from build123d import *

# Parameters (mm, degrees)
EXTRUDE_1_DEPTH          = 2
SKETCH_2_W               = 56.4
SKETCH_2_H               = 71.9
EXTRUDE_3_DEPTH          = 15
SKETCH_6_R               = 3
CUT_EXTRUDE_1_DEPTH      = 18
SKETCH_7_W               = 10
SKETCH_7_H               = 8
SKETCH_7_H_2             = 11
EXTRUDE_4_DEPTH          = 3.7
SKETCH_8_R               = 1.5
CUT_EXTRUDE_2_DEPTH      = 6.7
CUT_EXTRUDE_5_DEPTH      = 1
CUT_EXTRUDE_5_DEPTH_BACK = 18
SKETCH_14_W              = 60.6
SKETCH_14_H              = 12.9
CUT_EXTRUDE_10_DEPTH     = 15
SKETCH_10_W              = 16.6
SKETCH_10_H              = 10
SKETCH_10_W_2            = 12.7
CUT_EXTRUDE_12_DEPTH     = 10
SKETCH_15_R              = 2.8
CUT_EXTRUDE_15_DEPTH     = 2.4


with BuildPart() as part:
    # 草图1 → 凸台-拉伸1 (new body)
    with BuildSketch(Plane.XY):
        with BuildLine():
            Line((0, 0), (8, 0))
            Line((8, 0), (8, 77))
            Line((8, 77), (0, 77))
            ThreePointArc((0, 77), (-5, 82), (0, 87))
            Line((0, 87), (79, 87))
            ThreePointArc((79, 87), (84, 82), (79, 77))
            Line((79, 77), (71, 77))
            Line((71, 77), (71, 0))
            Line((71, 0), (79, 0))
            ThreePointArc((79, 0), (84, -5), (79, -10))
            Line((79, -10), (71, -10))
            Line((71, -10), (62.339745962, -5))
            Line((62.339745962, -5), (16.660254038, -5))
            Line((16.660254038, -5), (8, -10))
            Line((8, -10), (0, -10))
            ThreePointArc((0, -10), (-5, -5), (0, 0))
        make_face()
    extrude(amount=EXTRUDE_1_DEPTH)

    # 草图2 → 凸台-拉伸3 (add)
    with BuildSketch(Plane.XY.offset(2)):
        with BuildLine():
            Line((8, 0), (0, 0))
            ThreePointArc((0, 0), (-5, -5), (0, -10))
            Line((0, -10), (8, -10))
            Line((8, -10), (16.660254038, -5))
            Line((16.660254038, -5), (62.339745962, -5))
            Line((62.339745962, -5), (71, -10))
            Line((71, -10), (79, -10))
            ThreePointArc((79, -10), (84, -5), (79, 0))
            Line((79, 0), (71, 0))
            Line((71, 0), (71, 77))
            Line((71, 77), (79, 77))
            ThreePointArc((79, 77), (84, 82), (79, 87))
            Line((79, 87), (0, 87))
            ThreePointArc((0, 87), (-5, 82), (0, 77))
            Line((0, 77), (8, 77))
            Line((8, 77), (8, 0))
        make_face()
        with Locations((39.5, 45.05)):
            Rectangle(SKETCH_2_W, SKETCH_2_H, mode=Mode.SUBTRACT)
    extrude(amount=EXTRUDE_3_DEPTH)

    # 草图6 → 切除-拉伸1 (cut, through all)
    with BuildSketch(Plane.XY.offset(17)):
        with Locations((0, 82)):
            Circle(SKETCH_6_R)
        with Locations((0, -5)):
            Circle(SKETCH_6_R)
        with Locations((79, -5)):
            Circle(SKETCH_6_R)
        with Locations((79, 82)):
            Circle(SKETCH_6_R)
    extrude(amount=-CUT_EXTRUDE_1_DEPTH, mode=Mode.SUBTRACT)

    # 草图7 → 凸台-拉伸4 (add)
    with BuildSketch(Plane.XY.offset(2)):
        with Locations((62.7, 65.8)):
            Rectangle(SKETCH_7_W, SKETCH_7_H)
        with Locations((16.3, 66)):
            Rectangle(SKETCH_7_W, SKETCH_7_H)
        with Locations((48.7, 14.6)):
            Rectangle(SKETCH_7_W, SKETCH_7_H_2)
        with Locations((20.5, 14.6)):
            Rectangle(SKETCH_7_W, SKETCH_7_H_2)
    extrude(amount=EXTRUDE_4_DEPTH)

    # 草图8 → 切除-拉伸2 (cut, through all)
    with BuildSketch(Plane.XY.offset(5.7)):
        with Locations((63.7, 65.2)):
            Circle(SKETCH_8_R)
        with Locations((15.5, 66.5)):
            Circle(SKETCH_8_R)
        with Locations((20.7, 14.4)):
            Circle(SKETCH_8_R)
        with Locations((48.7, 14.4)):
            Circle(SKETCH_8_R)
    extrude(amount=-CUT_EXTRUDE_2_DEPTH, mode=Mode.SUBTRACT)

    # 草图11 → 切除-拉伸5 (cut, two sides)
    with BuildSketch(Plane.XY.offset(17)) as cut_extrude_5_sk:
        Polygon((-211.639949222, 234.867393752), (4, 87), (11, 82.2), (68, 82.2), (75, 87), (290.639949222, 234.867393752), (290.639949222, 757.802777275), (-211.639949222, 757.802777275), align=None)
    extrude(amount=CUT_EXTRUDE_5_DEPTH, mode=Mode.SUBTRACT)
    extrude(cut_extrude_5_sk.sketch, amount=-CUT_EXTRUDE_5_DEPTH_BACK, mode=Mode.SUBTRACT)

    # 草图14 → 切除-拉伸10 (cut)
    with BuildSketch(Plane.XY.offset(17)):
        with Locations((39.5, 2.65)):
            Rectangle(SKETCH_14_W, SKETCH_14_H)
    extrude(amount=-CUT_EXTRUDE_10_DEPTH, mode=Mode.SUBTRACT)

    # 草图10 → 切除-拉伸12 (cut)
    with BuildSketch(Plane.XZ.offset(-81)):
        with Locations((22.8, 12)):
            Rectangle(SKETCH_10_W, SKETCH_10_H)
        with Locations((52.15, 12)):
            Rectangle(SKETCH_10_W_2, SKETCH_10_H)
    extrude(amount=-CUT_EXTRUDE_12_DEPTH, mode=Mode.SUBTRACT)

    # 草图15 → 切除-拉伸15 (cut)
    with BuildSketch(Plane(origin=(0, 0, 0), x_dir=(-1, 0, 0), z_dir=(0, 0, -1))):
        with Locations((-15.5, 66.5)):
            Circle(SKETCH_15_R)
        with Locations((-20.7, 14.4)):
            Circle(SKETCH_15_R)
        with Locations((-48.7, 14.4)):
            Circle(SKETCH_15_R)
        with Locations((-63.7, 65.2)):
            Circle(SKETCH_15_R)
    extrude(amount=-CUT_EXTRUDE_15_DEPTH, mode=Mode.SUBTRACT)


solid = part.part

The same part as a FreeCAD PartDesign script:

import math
import FreeCAD as App
import Part
import Sketcher
Q = App.Units.Quantity


def add_polygon(sketch, points):
    """Adds a closed chain of lines whose ends are joined by coincident constraints."""
    first, n = sketch.GeometryCount, len(points)
    for a, b in zip(points, points[1:] + points[:1]):
        sketch.addGeometry(Part.LineSegment(App.Vector(*a, 0), App.Vector(*b, 0)), False)
    for i in range(n):
        sketch.addConstraint(Sketcher.Constraint("Coincident", first + i, 2, first + (i + 1) % n, 1))

doc = App.newDocument("Part")
body = doc.addObject("PartDesign::Body", "Body")

sketch1 = body.newObject("Sketcher::SketchObject", "Sketch")
sketch1.AttachmentSupport = (doc.getObject("XY_Plane"), [""])
sketch1.MapMode = "FlatFace"
sketch1.addGeometry(Part.LineSegment(App.Vector(8, 0, 0), App.Vector(0, 0, 0)), False)
sketch1.addGeometry(Part.ArcOfCircle(Part.Circle(App.Vector(0, -5, 0), App.Vector(0, 0, 1), 5), math.radians(90), math.radians(270)), False)
sketch1.addGeometry(Part.LineSegment(App.Vector(0, -10, 0), App.Vector(8, -10, 0)), False)
sketch1.addGeometry(Part.LineSegment(App.Vector(8, -10, 0), App.Vector(16.660254, -5, 0)), False)
sketch1.addGeometry(Part.LineSegment(App.Vector(16.660254, -5, 0), App.Vector(62.339746, -5, 0)), False)
sketch1.addGeometry(Part.LineSegment(App.Vector(62.339746, -5, 0), App.Vector(71, -10, 0)), False)
sketch1.addGeometry(Part.LineSegment(App.Vector(71, -10, 0), App.Vector(79, -10, 0)), False)
sketch1.addGeometry(Part.ArcOfCircle(Part.Circle(App.Vector(79, -5, 0), App.Vector(0, 0, 1), 5), math.radians(-90), math.radians(90)), False)
sketch1.addGeometry(Part.LineSegment(App.Vector(79, 0, 0), App.Vector(71, 0, 0)), False)
sketch1.addGeometry(Part.LineSegment(App.Vector(71, 0, 0), App.Vector(71, 77, 0)), False)
sketch1.addGeometry(Part.LineSegment(App.Vector(71, 77, 0), App.Vector(79, 77, 0)), False)
sketch1.addGeometry(Part.ArcOfCircle(Part.Circle(App.Vector(79, 82, 0), App.Vector(0, 0, 1), 5), math.radians(-90), math.radians(90)), False)
sketch1.addGeometry(Part.LineSegment(App.Vector(79, 87, 0), App.Vector(0, 87, 0)), False)
sketch1.addGeometry(Part.ArcOfCircle(Part.Circle(App.Vector(0, 82, 0), App.Vector(0, 0, 1), 5), math.radians(90), math.radians(270)), False)
sketch1.addGeometry(Part.LineSegment(App.Vector(0, 77, 0), App.Vector(8, 77, 0)), False)
sketch1.addGeometry(Part.LineSegment(App.Vector(8, 77, 0), App.Vector(8, 0, 0)), False)
sketch1.addConstraint(Sketcher.Constraint("Tangent", 0, 2, 1, 1))
sketch1.addConstraint(Sketcher.Constraint("Tangent", 1, 2, 2, 1))
sketch1.addConstraint(Sketcher.Constraint("Coincident", 2, 2, 3, 1))
sketch1.addConstraint(Sketcher.Constraint("Coincident", 3, 2, 4, 1))
sketch1.addConstraint(Sketcher.Constraint("Coincident", 4, 2, 5, 1))
sketch1.addConstraint(Sketcher.Constraint("Coincident", 5, 2, 6, 1))
sketch1.addConstraint(Sketcher.Constraint("Tangent", 6, 2, 7, 1))
sketch1.addConstraint(Sketcher.Constraint("Tangent", 7, 2, 8, 1))
sketch1.addConstraint(Sketcher.Constraint("Coincident", 8, 2, 9, 1))
sketch1.addConstraint(Sketcher.Constraint("Coincident", 9, 2, 10, 1))
sketch1.addConstraint(Sketcher.Constraint("Tangent", 10, 2, 11, 1))
sketch1.addConstraint(Sketcher.Constraint("Tangent", 11, 2, 12, 1))
sketch1.addConstraint(Sketcher.Constraint("Tangent", 12, 2, 13, 1))
sketch1.addConstraint(Sketcher.Constraint("Tangent", 13, 2, 14, 1))
sketch1.addConstraint(Sketcher.Constraint("Coincident", 14, 2, 15, 1))
sketch1.addConstraint(Sketcher.Constraint("Coincident", 15, 2, 0, 1))
sketch1.addConstraint(Sketcher.Constraint("Horizontal", 0))
sketch1.addConstraint(Sketcher.Constraint("Horizontal", 2))
sketch1.addConstraint(Sketcher.Constraint("Horizontal", 4))
sketch1.addConstraint(Sketcher.Constraint("Horizontal", 6))
sketch1.addConstraint(Sketcher.Constraint("Horizontal", 8))
sketch1.addConstraint(Sketcher.Constraint("Vertical", 9))
sketch1.addConstraint(Sketcher.Constraint("Horizontal", 10))
sketch1.addConstraint(Sketcher.Constraint("Horizontal", 12))
sketch1.addConstraint(Sketcher.Constraint("Horizontal", 14))
sketch1.addConstraint(Sketcher.Constraint("Vertical", 15))
sketch1.addConstraint(Sketcher.Constraint("Coincident", 0, 2, -1, 1))
sketch1.addConstraint(Sketcher.Constraint("Equal", 1, 7))
sketch1.addConstraint(Sketcher.Constraint("Equal", 7, 11))
sketch1.addConstraint(Sketcher.Constraint("Equal", 11, 13))
sketch1.addConstraint(Sketcher.Constraint("PointOnObject", 13, 3, -2))
sketch1.addConstraint(Sketcher.Constraint("PointOnObject", 7, 2, -1))
sketch1.addConstraint(Sketcher.Constraint("Horizontal", 7, 3, 3, 2))
sketch1.addConstraint(Sketcher.Constraint("Vertical", 7, 3, 11, 3))
sketch1.addConstraint(Sketcher.Constraint("Vertical", 5, 2, 8, 2))
sketch1.addConstraint(Sketcher.Constraint("Vertical", 2, 2, 14, 2))
sketch1.addConstraint(Sketcher.Constraint("Equal", 2, 6))
sketch1.addConstraint(Sketcher.Constraint("Equal", 3, 5))
sketch1.addConstraint(Sketcher.Constraint("Radius", 1, Q("5 mm")))
sketch1.addConstraint(Sketcher.Constraint("DistanceX", 0, 2, 0, 1, Q("8 mm")))
sketch1.addConstraint(Sketcher.Constraint("DistanceX", 12, 2, 12, 1, Q("79 mm")))
sketch1.addConstraint(Sketcher.Constraint("DistanceY", 9, 1, 9, 2, Q("77 mm")))
sketch1.addConstraint(Sketcher.Constraint("Angle", 3, Q("30 deg")))
pad1 = body.newObject("PartDesign::Pad", "Pad")
pad1.Profile = sketch1
pad1.Length = 2

sketch2 = body.newObject("Sketcher::SketchObject", "Sketch001")
sketch2.AttachmentSupport = (doc.getObject("XY_Plane"), [""])
sketch2.MapMode = "FlatFace"
sketch2.AttachmentOffset = App.Placement(App.Vector(0, 0, 2), App.Rotation())
sketch2.addGeometry(Part.LineSegment(App.Vector(8, 0, 0), App.Vector(0, 0, 0)), False)
sketch2.addGeometry(Part.ArcOfCircle(Part.Circle(App.Vector(0, -5, 0), App.Vector(0, 0, 1), 5), math.radians(90), math.radians(270)), False)
sketch2.addGeometry(Part.LineSegment(App.Vector(0, -10, 0), App.Vector(8, -10, 0)), False)
sketch2.addGeometry(Part.LineSegment(App.Vector(8, -10, 0), App.Vector(16.660254, -5, 0)), False)
sketch2.addGeometry(Part.LineSegment(App.Vector(16.660254, -5, 0), App.Vector(62.339746, -5, 0)), False)
sketch2.addGeometry(Part.LineSegment(App.Vector(62.339746, -5, 0), App.Vector(71, -10, 0)), False)
sketch2.addGeometry(Part.LineSegment(App.Vector(71, -10, 0), App.Vector(79, -10, 0)), False)
sketch2.addGeometry(Part.ArcOfCircle(Part.Circle(App.Vector(79, -5, 0), App.Vector(0, 0, 1), 5), math.radians(-90), math.radians(90)), False)
sketch2.addGeometry(Part.LineSegment(App.Vector(79, 0, 0), App.Vector(71, 0, 0)), False)
sketch2.addGeometry(Part.LineSegment(App.Vector(71, 0, 0), App.Vector(71, 77, 0)), False)
sketch2.addGeometry(Part.LineSegment(App.Vector(71, 77, 0), App.Vector(79, 77, 0)), False)
sketch2.addGeometry(Part.ArcOfCircle(Part.Circle(App.Vector(79, 82, 0), App.Vector(0, 0, 1), 5), math.radians(-90), math.radians(90)), False)
sketch2.addGeometry(Part.LineSegment(App.Vector(79, 87, 0), App.Vector(0, 87, 0)), False)
sketch2.addGeometry(Part.ArcOfCircle(Part.Circle(App.Vector(0, 82, 0), App.Vector(0, 0, 1), 5), math.radians(90), math.radians(270)), False)
sketch2.addGeometry(Part.LineSegment(App.Vector(0, 77, 0), App.Vector(8, 77, 0)), False)
sketch2.addGeometry(Part.LineSegment(App.Vector(8, 77, 0), App.Vector(8, 0, 0)), False)
add_polygon(sketch2, [(67.7, 9.1), (11.3, 9.1), (11.3, 81), (67.7, 81)])
sketch2.addConstraint(Sketcher.Constraint("Tangent", 0, 2, 1, 1))
sketch2.addConstraint(Sketcher.Constraint("Tangent", 1, 2, 2, 1))
sketch2.addConstraint(Sketcher.Constraint("Coincident", 2, 2, 3, 1))
sketch2.addConstraint(Sketcher.Constraint("Coincident", 3, 2, 4, 1))
sketch2.addConstraint(Sketcher.Constraint("Coincident", 4, 2, 5, 1))
sketch2.addConstraint(Sketcher.Constraint("Coincident", 5, 2, 6, 1))
sketch2.addConstraint(Sketcher.Constraint("Tangent", 6, 2, 7, 1))
sketch2.addConstraint(Sketcher.Constraint("Tangent", 7, 2, 8, 1))
sketch2.addConstraint(Sketcher.Constraint("Coincident", 8, 2, 9, 1))
sketch2.addConstraint(Sketcher.Constraint("Coincident", 9, 2, 10, 1))
sketch2.addConstraint(Sketcher.Constraint("Tangent", 10, 2, 11, 1))
sketch2.addConstraint(Sketcher.Constraint("Tangent", 11, 2, 12, 1))
sketch2.addConstraint(Sketcher.Constraint("Tangent", 12, 2, 13, 1))
sketch2.addConstraint(Sketcher.Constraint("Tangent", 13, 2, 14, 1))
sketch2.addConstraint(Sketcher.Constraint("Coincident", 14, 2, 15, 1))
sketch2.addConstraint(Sketcher.Constraint("Coincident", 15, 2, 0, 1))
sketch2.addConstraint(Sketcher.Constraint("Horizontal", 0))
sketch2.addConstraint(Sketcher.Constraint("Horizontal", 2))
sketch2.addConstraint(Sketcher.Constraint("Horizontal", 4))
sketch2.addConstraint(Sketcher.Constraint("Horizontal", 6))
sketch2.addConstraint(Sketcher.Constraint("Horizontal", 8))
sketch2.addConstraint(Sketcher.Constraint("Vertical", 9))
sketch2.addConstraint(Sketcher.Constraint("Horizontal", 10))
sketch2.addConstraint(Sketcher.Constraint("Horizontal", 12))
sketch2.addConstraint(Sketcher.Constraint("Horizontal", 14))
sketch2.addConstraint(Sketcher.Constraint("Vertical", 15))
sketch2.addConstraint(Sketcher.Constraint("Horizontal", 16))
sketch2.addConstraint(Sketcher.Constraint("Vertical", 17))
sketch2.addConstraint(Sketcher.Constraint("Horizontal", 18))
sketch2.addConstraint(Sketcher.Constraint("Vertical", 19))
sketch2.addConstraint(Sketcher.Constraint("Coincident", 0, 2, -1, 1))
sketch2.addConstraint(Sketcher.Constraint("Equal", 1, 7))
sketch2.addConstraint(Sketcher.Constraint("Equal", 7, 11))
sketch2.addConstraint(Sketcher.Constraint("Equal", 11, 13))
sketch2.addConstraint(Sketcher.Constraint("PointOnObject", 13, 3, -2))
sketch2.addConstraint(Sketcher.Constraint("PointOnObject", 7, 2, -1))
sketch2.addConstraint(Sketcher.Constraint("Horizontal", 7, 3, 3, 2))
sketch2.addConstraint(Sketcher.Constraint("Vertical", 7, 3, 11, 3))
sketch2.addConstraint(Sketcher.Constraint("Vertical", 5, 2, 8, 2))
sketch2.addConstraint(Sketcher.Constraint("Vertical", 2, 2, 14, 2))
sketch2.addConstraint(Sketcher.Constraint("Equal", 2, 6))
sketch2.addConstraint(Sketcher.Constraint("Equal", 3, 5))
sketch2.addConstraint(Sketcher.Constraint("Radius", 1, Q("5 mm")))
sketch2.addConstraint(Sketcher.Constraint("DistanceX", 0, 2, 0, 1, Q("8 mm")))
sketch2.addConstraint(Sketcher.Constraint("DistanceX", 12, 2, 12, 1, Q("79 mm")))
sketch2.addConstraint(Sketcher.Constraint("DistanceY", 9, 1, 9, 2, Q("77 mm")))
sketch2.addConstraint(Sketcher.Constraint("Angle", 3, Q("30 deg")))
sketch2.addConstraint(Sketcher.Constraint("DistanceX", 16, 2, 16, 1, Q("56.4 mm")))
sketch2.addConstraint(Sketcher.Constraint("DistanceY", 17, 1, 17, 2, Q("71.9 mm")))
sketch2.addConstraint(Sketcher.Constraint("DistanceY", -1, 1, 17, 2, Q("81 mm")))
sketch2.addConstraint(Sketcher.Constraint("DistanceX", -1, 1, 16, 2, Q("11.3 mm")))
pad2 = body.newObject("PartDesign::Pad", "Pad001")
pad2.Profile = sketch2
pad2.Length = 15

sketch3 = body.newObject("Sketcher::SketchObject", "Sketch002")
sketch3.AttachmentSupport = (doc.getObject("XY_Plane"), [""])
sketch3.MapMode = "FlatFace"
sketch3.AttachmentOffset = App.Placement(App.Vector(0, 0, 17), App.Rotation())
sketch3.addGeometry(Part.Circle(App.Vector(0, 82, 0), App.Vector(0, 0, 1), 3), False)
sketch3.addGeometry(Part.Circle(App.Vector(0, -5, 0), App.Vector(0, 0, 1), 3), False)
sketch3.addGeometry(Part.Circle(App.Vector(79, -5, 0), App.Vector(0, 0, 1), 3), False)
sketch3.addGeometry(Part.Circle(App.Vector(79, 82, 0), App.Vector(0, 0, 1), 3), False)
sketch3.addConstraint(Sketcher.Constraint("Equal", 0, 1))
sketch3.addConstraint(Sketcher.Constraint("Equal", 1, 2))
sketch3.addConstraint(Sketcher.Constraint("Equal", 2, 3))
sketch3.addConstraint(Sketcher.Constraint("PointOnObject", 0, 3, -2))
sketch3.addConstraint(Sketcher.Constraint("PointOnObject", 1, 3, -2))
sketch3.addConstraint(Sketcher.Constraint("Horizontal", 1, 3, 2, 3))
sketch3.addConstraint(Sketcher.Constraint("Horizontal", 0, 3, 3, 3))
sketch3.addConstraint(Sketcher.Constraint("Vertical", 2, 3, 3, 3))
sketch3.addConstraint(Sketcher.Constraint("Diameter", 0, Q("6 mm")))
sketch3.addConstraint(Sketcher.Constraint("DistanceY", -1, 1, 0, 3, Q("82 mm")))
sketch3.addConstraint(Sketcher.Constraint("DistanceY", 1, 3, -1, 1, Q("5 mm")))
sketch3.addConstraint(Sketcher.Constraint("DistanceX", -1, 1, 2, 3, Q("79 mm")))
pocket1 = body.newObject("PartDesign::Pocket", "Pocket")
pocket1.Profile = sketch3
pocket1.Type = "ThroughAll"

sketch4 = body.newObject("Sketcher::SketchObject", "Sketch003")
sketch4.AttachmentSupport = (doc.getObject("XY_Plane"), [""])
sketch4.MapMode = "FlatFace"
sketch4.AttachmentOffset = App.Placement(App.Vector(0, 0, 2), App.Rotation())
add_polygon(sketch4, [(57.7, 69.8), (57.7, 61.8), (67.7, 61.8), (67.7, 69.8)])
add_polygon(sketch4, [(11.3, 70), (11.3, 62), (21.3, 62), (21.3, 70)])
add_polygon(sketch4, [(43.7, 20.1), (43.7, 9.1), (53.7, 9.1), (53.7, 20.1)])
add_polygon(sketch4, [(15.5, 20.1), (15.5, 9.1), (25.5, 9.1), (25.5, 20.1)])
sketch4.addConstraint(Sketcher.Constraint("Vertical", 0))
sketch4.addConstraint(Sketcher.Constraint("Horizontal", 1))
sketch4.addConstraint(Sketcher.Constraint("Vertical", 2))
sketch4.addConstraint(Sketcher.Constraint("Horizontal", 3))
sketch4.addConstraint(Sketcher.Constraint("Vertical", 4))
sketch4.addConstraint(Sketcher.Constraint("Horizontal", 5))
sketch4.addConstraint(Sketcher.Constraint("Vertical", 6))
sketch4.addConstraint(Sketcher.Constraint("Horizontal", 7))
sketch4.addConstraint(Sketcher.Constraint("Vertical", 8))
sketch4.addConstraint(Sketcher.Constraint("Horizontal", 9))
sketch4.addConstraint(Sketcher.Constraint("Vertical", 10))
sketch4.addConstraint(Sketcher.Constraint("Horizontal", 11))
sketch4.addConstraint(Sketcher.Constraint("Vertical", 12))
sketch4.addConstraint(Sketcher.Constraint("Horizontal", 13))
sketch4.addConstraint(Sketcher.Constraint("Vertical", 14))
sketch4.addConstraint(Sketcher.Constraint("Horizontal", 15))
sketch4.addConstraint(Sketcher.Constraint("Horizontal", 9, 2, 12, 2))
sketch4.addConstraint(Sketcher.Constraint("Horizontal", 11, 2, 14, 2))
sketch4.addConstraint(Sketcher.Constraint("Equal", 3, 5))
sketch4.addConstraint(Sketcher.Constraint("Equal", 7, 9))
sketch4.addConstraint(Sketcher.Constraint("Equal", 11, 13))
sketch4.addConstraint(Sketcher.Constraint("Equal", 2, 4))
sketch4.addConstraint(Sketcher.Constraint("DistanceX", 1, 1, 1, 2, Q("10 mm")))
sketch4.addConstraint(Sketcher.Constraint("DistanceY", 0, 2, 0, 1, Q("8 mm")))
sketch4.addConstraint(Sketcher.Constraint("DistanceY", 8, 2, 8, 1, Q("11 mm")))
sketch4.addConstraint(Sketcher.Constraint("DistanceY", -1, 1, 4, 2, Q("62 mm")))
sketch4.addConstraint(Sketcher.Constraint("DistanceX", 8, 2, 0, 2, Q("14 mm")))
sketch4.addConstraint(Sketcher.Constraint("DistanceX", -1, 1, 0, 2, Q("57.7 mm")))
sketch4.addConstraint(Sketcher.Constraint("DistanceY", -1, 1, 0, 2, Q("61.8 mm")))
sketch4.addConstraint(Sketcher.Constraint("DistanceX", -1, 1, 4, 2, Q("11.3 mm")))
sketch4.addConstraint(Sketcher.Constraint("DistanceY", -1, 1, 8, 2, Q("9.1 mm")))
sketch4.addConstraint(Sketcher.Constraint("DistanceX", -1, 1, 12, 2, Q("15.5 mm")))
pad3 = body.newObject("PartDesign::Pad", "Pad002")
pad3.Profile = sketch4
pad3.Length = 3.7

sketch5 = body.newObject("Sketcher::SketchObject", "Sketch004")
sketch5.AttachmentSupport = (doc.getObject("XY_Plane"), [""])
sketch5.MapMode = "FlatFace"
sketch5.AttachmentOffset = App.Placement(App.Vector(0, 0, 5.7), App.Rotation())
sketch5.addGeometry(Part.Circle(App.Vector(63.7, 65.2, 0), App.Vector(0, 0, 1), 1.5), False)
sketch5.addGeometry(Part.Circle(App.Vector(15.5, 66.5, 0), App.Vector(0, 0, 1), 1.5), False)
sketch5.addGeometry(Part.Circle(App.Vector(20.7, 14.4, 0), App.Vector(0, 0, 1), 1.5), False)
sketch5.addGeometry(Part.Circle(App.Vector(48.7, 14.4, 0), App.Vector(0, 0, 1), 1.5), False)
sketch5.addConstraint(Sketcher.Constraint("Equal", 0, 1))
sketch5.addConstraint(Sketcher.Constraint("Equal", 1, 2))
sketch5.addConstraint(Sketcher.Constraint("Equal", 2, 3))
sketch5.addConstraint(Sketcher.Constraint("Horizontal", 2, 3, 3, 3))
sketch5.addConstraint(Sketcher.Constraint("Diameter", 0, Q("3 mm")))
sketch5.addConstraint(Sketcher.Constraint("DistanceX", 2, 3, 0, 3, Q("43 mm")))
sketch5.addConstraint(Sketcher.Constraint("DistanceX", 2, 3, 3, 3, Q("28 mm")))
sketch5.addConstraint(Sketcher.Constraint("DistanceX", -1, 1, 0, 3, Q("63.7 mm")))
sketch5.addConstraint(Sketcher.Constraint("DistanceY", -1, 1, 0, 3, Q("65.2 mm")))
sketch5.addConstraint(Sketcher.Constraint("DistanceX", -1, 1, 1, 3, Q("15.5 mm")))
sketch5.addConstraint(Sketcher.Constraint("DistanceY", -1, 1, 1, 3, Q("66.5 mm")))
sketch5.addConstraint(Sketcher.Constraint("DistanceY", -1, 1, 2, 3, Q("14.4 mm")))
pocket2 = body.newObject("PartDesign::Pocket", "Pocket001")
pocket2.Profile = sketch5
pocket2.Type = "ThroughAll"

sketch6 = body.newObject("Sketcher::SketchObject", "Sketch005")
sketch6.AttachmentSupport = (doc.getObject("XY_Plane"), [""])
sketch6.MapMode = "FlatFace"
sketch6.AttachmentOffset = App.Placement(App.Vector(0, 0, 17), App.Rotation())
add_polygon(sketch6, [(-211.639949, 234.867394), (11, 82.2), (68, 82.2), (290.639949, 234.867394), (290.639949, 757.802777), (-211.639949, 757.802777)])
sketch6.addConstraint(Sketcher.Constraint("Horizontal", 1))
sketch6.addConstraint(Sketcher.Constraint("Vertical", 3))
sketch6.addConstraint(Sketcher.Constraint("Horizontal", 4))
sketch6.addConstraint(Sketcher.Constraint("Vertical", 5))
sketch6.addConstraint(Sketcher.Constraint("Horizontal", 2, 2, 5, 2))
sketch6.addConstraint(Sketcher.Constraint("Equal", 0, 2))
sketch6.addConstraint(Sketcher.Constraint("DistanceX", 1, 1, 1, 2, Q("57 mm")))
sketch6.addConstraint(Sketcher.Constraint("DistanceX", -1, 1, 0, 2, Q("11 mm")))
sketch6.addConstraint(Sketcher.Constraint("DistanceY", -1, 1, 0, 2, Q("82.2 mm")))
sketch6.addConstraint(Sketcher.Constraint("DistanceX", 4, 2, 4, 1, Q("502.279898 mm")))
sketch6.addConstraint(Sketcher.Constraint("Distance", 0, Q("269.95533 mm")))
sketch6.addConstraint(Sketcher.Constraint("DistanceY", 3, 1, 3, 2, Q("522.935384 mm")))
pocket3 = body.newObject("PartDesign::Pocket", "Pocket002")
pocket3.Profile = sketch6
pocket3.Type = "ThroughAll"
pocket3.Midplane = True

sketch7 = body.newObject("Sketcher::SketchObject", "Sketch006")
sketch7.AttachmentSupport = (doc.getObject("XY_Plane"), [""])
sketch7.MapMode = "FlatFace"
sketch7.AttachmentOffset = App.Placement(App.Vector(0, 0, 17), App.Rotation())
add_polygon(sketch7, [(9.2, 9.1), (9.2, -3.8), (69.8, -3.8), (69.8, 9.1)])
sketch7.addConstraint(Sketcher.Constraint("Vertical", 0))
sketch7.addConstraint(Sketcher.Constraint("Horizontal", 1))
sketch7.addConstraint(Sketcher.Constraint("Vertical", 2))
sketch7.addConstraint(Sketcher.Constraint("Horizontal", 3))
sketch7.addConstraint(Sketcher.Constraint("DistanceX", 1, 1, 1, 2, Q("60.6 mm")))
sketch7.addConstraint(Sketcher.Constraint("DistanceY", 0, 2, 0, 1, Q("12.9 mm")))
sketch7.addConstraint(Sketcher.Constraint("DistanceX", -1, 1, 0, 2, Q("9.2 mm")))
sketch7.addConstraint(Sketcher.Constraint("DistanceY", 0, 2, -1, 1, Q("3.8 mm")))
pocket4 = body.newObject("PartDesign::Pocket", "Pocket003")
pocket4.Profile = sketch7
pocket4.Length = 15

sketch8 = body.newObject("Sketcher::SketchObject", "Sketch007")
sketch8.AttachmentSupport = (doc.getObject("XZ_Plane"), [""])
sketch8.MapMode = "FlatFace"
sketch8.AttachmentOffset = App.Placement(App.Vector(0, 0, -81), App.Rotation())
add_polygon(sketch8, [(14.5, 17), (14.5, 7), (31.1, 7), (31.1, 17)])
add_polygon(sketch8, [(45.8, 17), (45.8, 7), (58.5, 7), (58.5, 17)])
sketch8.addConstraint(Sketcher.Constraint("Vertical", 0))
sketch8.addConstraint(Sketcher.Constraint("Horizontal", 1))
sketch8.addConstraint(Sketcher.Constraint("Vertical", 2))
sketch8.addConstraint(Sketcher.Constraint("Horizontal", 3))
sketch8.addConstraint(Sketcher.Constraint("Vertical", 4))
sketch8.addConstraint(Sketcher.Constraint("Horizontal", 5))
sketch8.addConstraint(Sketcher.Constraint("Vertical", 6))
sketch8.addConstraint(Sketcher.Constraint("Horizontal", 7))
sketch8.addConstraint(Sketcher.Constraint("Horizontal", 1, 2, 4, 2))
sketch8.addConstraint(Sketcher.Constraint("Horizontal", 3, 2, 6, 2))
sketch8.addConstraint(Sketcher.Constraint("DistanceY", 0, 2, 0, 1, Q("10 mm")))
sketch8.addConstraint(Sketcher.Constraint("DistanceX", 1, 1, 1, 2, Q("16.6 mm")))
sketch8.addConstraint(Sketcher.Constraint("DistanceX", 5, 1, 5, 2, Q("12.7 mm")))
sketch8.addConstraint(Sketcher.Constraint("DistanceY", -1, 1, 0, 2, Q("7 mm")))
sketch8.addConstraint(Sketcher.Constraint("DistanceX", 0, 2, 5, 2, Q("44 mm")))
sketch8.addConstraint(Sketcher.Constraint("DistanceX", -1, 1, 0, 2, Q("14.5 mm")))
pocket5 = body.newObject("PartDesign::Pocket", "Pocket004")
pocket5.Profile = sketch8
pocket5.Length = 10

sketch9 = body.newObject("Sketcher::SketchObject", "Sketch008")
sketch9.AttachmentSupport = (doc.getObject("XY_Plane"), [""])
sketch9.MapMode = "FlatFace"
sketch9.addGeometry(Part.Circle(App.Vector(15.5, 66.5, 0), App.Vector(0, 0, 1), 2.8), False)
sketch9.addGeometry(Part.Circle(App.Vector(20.7, 14.4, 0), App.Vector(0, 0, 1), 2.8), False)
sketch9.addGeometry(Part.Circle(App.Vector(48.7, 14.4, 0), App.Vector(0, 0, 1), 2.8), False)
sketch9.addGeometry(Part.Circle(App.Vector(63.7, 65.2, 0), App.Vector(0, 0, 1), 2.8), False)
sketch9.addConstraint(Sketcher.Constraint("Equal", 0, 1))
sketch9.addConstraint(Sketcher.Constraint("Equal", 1, 2))
sketch9.addConstraint(Sketcher.Constraint("Equal", 2, 3))
sketch9.addConstraint(Sketcher.Constraint("Horizontal", 1, 3, 2, 3))
sketch9.addConstraint(Sketcher.Constraint("Diameter", 0, Q("5.6 mm")))
sketch9.addConstraint(Sketcher.Constraint("DistanceX", 1, 3, 2, 3, Q("28 mm")))
sketch9.addConstraint(Sketcher.Constraint("DistanceX", 2, 3, 3, 3, Q("15 mm")))
sketch9.addConstraint(Sketcher.Constraint("DistanceX", -1, 1, 0, 3, Q("15.5 mm")))
sketch9.addConstraint(Sketcher.Constraint("DistanceY", -1, 1, 0, 3, Q("66.5 mm")))
sketch9.addConstraint(Sketcher.Constraint("DistanceX", -1, 1, 1, 3, Q("20.7 mm")))
sketch9.addConstraint(Sketcher.Constraint("DistanceY", -1, 1, 1, 3, Q("14.4 mm")))
sketch9.addConstraint(Sketcher.Constraint("DistanceY", -1, 1, 3, 3, Q("65.2 mm")))
pocket6 = body.newObject("PartDesign::Pocket", "Pocket005")
pocket6.Profile = sketch9
pocket6.Length = 2.4
pocket6.Reversed = True

doc.recompute()
